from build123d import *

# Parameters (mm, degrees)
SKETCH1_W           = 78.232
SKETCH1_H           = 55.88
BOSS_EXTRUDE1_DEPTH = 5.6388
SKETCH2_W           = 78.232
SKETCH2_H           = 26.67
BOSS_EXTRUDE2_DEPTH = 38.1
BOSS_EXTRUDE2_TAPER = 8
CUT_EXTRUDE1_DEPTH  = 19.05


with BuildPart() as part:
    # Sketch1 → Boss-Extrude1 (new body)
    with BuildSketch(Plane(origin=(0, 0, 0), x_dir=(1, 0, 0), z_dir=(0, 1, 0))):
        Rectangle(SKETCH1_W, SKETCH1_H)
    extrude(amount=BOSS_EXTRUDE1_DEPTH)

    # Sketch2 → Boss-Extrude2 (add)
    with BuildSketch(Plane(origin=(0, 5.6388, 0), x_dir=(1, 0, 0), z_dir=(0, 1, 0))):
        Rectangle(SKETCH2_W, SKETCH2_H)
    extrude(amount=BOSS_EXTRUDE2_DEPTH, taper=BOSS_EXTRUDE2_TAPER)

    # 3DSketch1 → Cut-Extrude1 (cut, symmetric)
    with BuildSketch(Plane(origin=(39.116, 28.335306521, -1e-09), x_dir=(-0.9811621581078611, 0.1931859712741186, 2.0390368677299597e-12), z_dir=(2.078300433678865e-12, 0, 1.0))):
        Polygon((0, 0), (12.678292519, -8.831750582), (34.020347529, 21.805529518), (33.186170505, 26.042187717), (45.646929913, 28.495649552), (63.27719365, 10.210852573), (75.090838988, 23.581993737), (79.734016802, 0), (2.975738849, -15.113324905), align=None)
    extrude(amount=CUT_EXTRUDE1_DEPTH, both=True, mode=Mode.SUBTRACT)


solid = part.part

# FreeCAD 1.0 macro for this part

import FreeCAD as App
import Part
import Sketcher

V = App.Vector
Q = App.Units.Quantity

doc = App.newDocument("Part")
body = doc.addObject("PartDesign::Body", "Body")

# Sketch on XZ plane
sketch1 = body.newObject("Sketcher::SketchObject", "Sketch")
sketch1.AttachmentSupport = (doc.getObject("XZ_Plane"), [""])
sketch1.MapMode = "FlatFace"
sketch1.addGeometry(Part.LineSegment(V(-39.116, -27.94, 0), V(-39.116, 27.94, 0)), False)
sketch1.addGeometry(Part.LineSegment(V(-39.116, 27.94, 0), V(39.116, 27.94, 0)), False)
sketch1.addGeometry(Part.LineSegment(V(39.116, 27.94, 0), V(39.116, -27.94, 0)), False)
sketch1.addGeometry(Part.LineSegment(V(39.116, -27.94, 0), V(-39.116, -27.94, 0)), False)
sketch1.addConstraint(Sketcher.Constraint("Coincident", 0, 2, 1, 1))
sketch1.addConstraint(Sketcher.Constraint("Coincident", 1, 2, 2, 1))
sketch1.addConstraint(Sketcher.Constraint("Coincident", 2, 2, 3, 1))
sketch1.addConstraint(Sketcher.Constraint("Coincident", 3, 2, 0, 1))
sketch1.addConstraint(Sketcher.Constraint("Vertical", 0))
sketch1.addConstraint(Sketcher.Constraint("Horizontal", 1))
sketch1.addConstraint(Sketcher.Constraint("Vertical", 2))
sketch1.addConstraint(Sketcher.Constraint("Horizontal", 3))
sketch1.addConstraint(Sketcher.Constraint("Symmetric", 0, 2, 2, 2, -1, 1))
sketch1.addConstraint(Sketcher.Constraint("DistanceY", 0, 1, 0, 2, Q("2.2 in")))
sketch1.addConstraint(Sketcher.Constraint("DistanceX", 1, 1, 1, 2, Q("3.08 in")))
pad1 = body.newObject("PartDesign::Pad", "Pad")
pad1.Profile = sketch1
pad1.Length = Q("0.222 in")
pad1.Reversed = True

# Sketch on XZ plane
sketch2 = body.newObject("Sketcher::SketchObject", "Sketch001")
sketch2.AttachmentSupport = (doc.getObject("XZ_Plane"), [""])
sketch2.MapMode = "FlatFace"
sketch2.AttachmentOffset = App.Placement(V(0, 0, -0.222 * 25.4), App.Rotation())
sketch2.addGeometry(Part.LineSegment(V(-39.116, -13.335, 0), V(-39.116, 13.335, 0)), False)
sketch2.addGeometry(Part.LineSegment(V(-39.116, 13.335, 0), V(39.116, 13.335, 0)), False)
sketch2.addGeometry(Part.LineSegment(V(39.116, 13.335, 0), V(39.116, -13.335, 0)), False)
sketch2.addGeometry(Part.LineSegment(V(39.116, -13.335, 0), V(-39.116, -13.335, 0)), False)
sketch2.addConstraint(Sketcher.Constraint("Coincident", 0, 2, 1, 1))
sketch2.addConstraint(Sketcher.Constraint("Coincident", 1, 2, 2, 1))
sketch2.addConstraint(Sketcher.Constraint("Coincident", 2, 2, 3, 1))
sketch2.addConstraint(Sketcher.Constraint("Coincident", 3, 2, 0, 1))
sketch2.addConstraint(Sketcher.Constraint("Vertical", 0))
sketch2.addConstraint(Sketcher.Constraint("Horizontal", 1))
sketch2.addConstraint(Sketcher.Constraint("Vertical", 2))
sketch2.addConstraint(Sketcher.Constraint("Horizontal", 3))
sketch2.addConstraint(Sketcher.Constraint("Symmetric", 0, 2, 2, 2, -1, 1))
sketch2.addConstraint(Sketcher.Constraint("DistanceX", 1, 1, 1, 2, Q("3.08 in")))
sketch2.addConstraint(Sketcher.Constraint("DistanceY", 0, 1, 0, 2, Q("1.05 in")))
pad2 = body.newObject("PartDesign::Pad", "Pad001")
pad2.Profile = sketch2
pad2.Length = Q("1.5 in")
pad2.Reversed = True
pad2.TaperAngle = -8

# Sketch on XY plane
sketch3 = body.newObject("Sketcher::SketchObject", "Sketch002")
sketch3.AttachmentSupport = (doc.getObject("XY_Plane"), [""])
sketch3.MapMode = "FlatFace"
sketch3.addGeometry(Part.LineSegment(V(28.382709, 39.449954, 0), V(39.116, 28.335307, 0)), False)
sketch3.addGeometry(Part.LineSegment(V(39.116, 28.335307, 0), V(39.116, 43.7388, 0)), False)
sketch3.addGeometry(Part.LineSegment(V(39.116, 43.7388, 0), V(-39.116, 43.7388, 0)), False)
sketch3.addGeometry(Part.LineSegment(V(-39.116, 43.7388, 0), V(-39.116, 19.704043, 0)), False)
sketch3.addGeometry(Part.LineSegment(V(-39.116, 19.704043, 0), V(-24.941781, 30.54107, 0)), False)
sketch3.addGeometry(Part.LineSegment(V(-24.941781, 30.54107, 0), V(-11.176, 9.1948, 0)), False)
sketch3.addGeometry(Part.LineSegment(V(-11.176, 9.1948, 0), V(1.524, 9.1948, 0)), False)
sketch3.addGeometry(Part.LineSegment(V(1.524, 9.1948, 0), V(1.524, 13.5128, 0)), False)
sketch3.addGeometry(Part.LineSegment(V(1.524, 13.5128, 0), V(28.382709, 39.449954, 0)), False)
sketch3.addConstraint(Sketcher.Constraint("Coincident", 0, 2, 1, 1))
sketch3.addConstraint(Sketcher.Constraint("Coincident", 1, 2, 2, 1))
sketch3.addConstraint(Sketcher.Constraint("Coincident", 2, 2, 3, 1))
sketch3.addConstraint(Sketcher.Constraint("Coincident", 3, 2, 4, 1))
sketch3.addConstraint(Sketcher.Constraint("Coincident", 4, 2, 5, 1))
sketch3.addConstraint(Sketcher.Constraint("Coincident", 5, 2, 6, 1))
sketch3.addConstraint(Sketcher.Constraint("Coincident", 6, 2, 7, 1))
sketch3.addConstraint(Sketcher.Constraint("Coincident", 7, 2, 8, 1))
sketch3.addConstraint(Sketcher.Constraint("Coincident", 8, 2, 0, 1))
sketch3.addConstraint(Sketcher.Constraint("Vertical", 1))
sketch3.addConstraint(Sketcher.Constraint("Horizontal", 2))
sketch3.addConstraint(Sketcher.Constraint("Vertical", 3))
sketch3.addConstraint(Sketcher.Constraint("Horizontal", 6))
sketch3.addConstraint(Sketcher.Constraint("Vertical", 7))
sketch3.addConstraint(Sketcher.Constraint("Perpendicular", 0, 8))
sketch3.addConstraint(Sketcher.Constraint("Distance", 5, Q("1 in")))
sketch3.addConstraint(Sketcher.Constraint("DistanceX", 6, 1, 6, 2, Q("0.5 in")))
sketch3.addConstraint(Sketcher.Constraint("Angle", 0, Q("-46 deg")))
sketch3.addConstraint(Sketcher.Constraint("DistanceX", 2, 2, 2, 1, Q("3.08 in")))
sketch3.addConstraint(Sketcher.Constraint("DistanceY", 7, 1, 7, 2, Q("0.17 in")))
sketch3.addConstraint(Sketcher.Constraint("DistanceX", 3, 2, 5, 2, Q("1.1 in")))
sketch3.addConstraint(Sketcher.Constraint("Distance", 8, Q("1.47 in")))
sketch3.addConstraint(Sketcher.Constraint("DistanceX", -1, 1, 0, 2, Q("1.54 in")))
sketch3.addConstraint(Sketcher.Constraint("DistanceY", 5, 2, 2, 2, Q("1.36 in")))
sketch3.addConstraint(Sketcher.Constraint("DistanceY", -1, 1, 1, 2, Q("1.722 in")))
sketch3.addConstraint(Sketcher.Constraint("DistanceY", 3, 2, 3, 1, 24.034757))
sketch3.addConstraint(Sketcher.Constraint("DistanceX", 4, 2, -1, 1, 24.941781))
pocket1 = body.newObject("PartDesign::Pocket", "Pocket")
pocket1.Profile = sketch3
pocket1.Length = Q("1.5 in")
pocket1.Midplane = True

doc.recompute()
